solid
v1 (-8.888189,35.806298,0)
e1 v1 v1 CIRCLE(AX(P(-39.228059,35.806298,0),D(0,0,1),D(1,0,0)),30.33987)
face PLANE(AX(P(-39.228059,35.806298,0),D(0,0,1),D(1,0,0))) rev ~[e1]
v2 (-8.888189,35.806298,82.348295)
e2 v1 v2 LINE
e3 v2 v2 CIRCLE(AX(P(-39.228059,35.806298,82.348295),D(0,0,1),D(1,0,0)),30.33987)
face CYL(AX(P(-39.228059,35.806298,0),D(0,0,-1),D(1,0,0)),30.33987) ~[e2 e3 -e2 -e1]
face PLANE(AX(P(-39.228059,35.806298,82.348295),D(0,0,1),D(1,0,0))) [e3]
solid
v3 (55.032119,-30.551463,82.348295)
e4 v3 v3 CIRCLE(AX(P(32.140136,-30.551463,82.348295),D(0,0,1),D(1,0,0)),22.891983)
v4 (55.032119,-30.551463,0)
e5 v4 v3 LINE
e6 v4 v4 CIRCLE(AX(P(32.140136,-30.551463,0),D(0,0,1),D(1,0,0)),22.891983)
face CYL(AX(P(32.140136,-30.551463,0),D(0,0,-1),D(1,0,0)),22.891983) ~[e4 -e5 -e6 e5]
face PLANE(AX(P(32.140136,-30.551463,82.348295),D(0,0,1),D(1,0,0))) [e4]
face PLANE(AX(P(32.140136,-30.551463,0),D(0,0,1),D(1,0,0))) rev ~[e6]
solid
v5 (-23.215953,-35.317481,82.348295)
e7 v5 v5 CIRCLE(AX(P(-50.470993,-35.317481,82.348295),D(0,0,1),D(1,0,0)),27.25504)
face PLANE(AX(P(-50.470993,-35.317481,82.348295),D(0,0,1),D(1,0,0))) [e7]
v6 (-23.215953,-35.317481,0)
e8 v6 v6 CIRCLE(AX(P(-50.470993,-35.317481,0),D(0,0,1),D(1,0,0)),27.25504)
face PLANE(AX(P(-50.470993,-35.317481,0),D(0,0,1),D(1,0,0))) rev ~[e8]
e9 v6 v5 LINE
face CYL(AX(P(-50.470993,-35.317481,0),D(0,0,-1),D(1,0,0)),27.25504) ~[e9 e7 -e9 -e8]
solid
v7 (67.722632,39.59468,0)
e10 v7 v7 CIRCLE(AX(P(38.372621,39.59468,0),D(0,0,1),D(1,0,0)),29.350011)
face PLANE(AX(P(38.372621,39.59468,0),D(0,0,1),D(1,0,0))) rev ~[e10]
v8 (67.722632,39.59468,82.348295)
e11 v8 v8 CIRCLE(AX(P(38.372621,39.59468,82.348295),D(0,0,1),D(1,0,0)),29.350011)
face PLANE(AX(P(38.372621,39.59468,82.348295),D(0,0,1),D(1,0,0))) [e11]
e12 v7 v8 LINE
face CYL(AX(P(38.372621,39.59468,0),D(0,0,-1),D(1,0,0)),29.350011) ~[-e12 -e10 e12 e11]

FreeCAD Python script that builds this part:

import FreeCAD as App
import Part
import Sketcher
from FreeCAD import Vector

doc = App.newDocument("Part")
body = doc.addObject("PartDesign::Body", "Body")
body.AllowCompound = True

sketch1 = body.newObject("Sketcher::SketchObject", "Sketch")
sketch1.AttachmentSupport = (doc.getObject("XY_Plane"), [""])
sketch1.MapMode = "FlatFace"
sketch1.addGeometry([
    Part.Circle(Vector(-39.228059, 35.806298, 0), Vector(0, 0, 1), 30.33987),
    Part.Circle(Vector(38.372621, 39.59468, 0), Vector(0, 0, 1), 29.350011),
    Part.Circle(Vector(32.140136, -30.551463, 0), Vector(0, 0, 1), 22.891983),
    Part.Circle(Vector(-50.470993, -35.317481, 0), Vector(0, 0, 1), 27.25504),
], False)
sketch1.addConstraint([
    Sketcher.Constraint("Diameter", 0, 60.67974),
    Sketcher.Constraint("Diameter", 1, 58.700022),
    Sketcher.Constraint("Diameter", 3, 54.51008),
    Sketcher.Constraint("Diameter", 2, 45.783966),
    Sketcher.Constraint("DistanceX", 0, 3, -1, 1, 39.228059),
    Sketcher.Constraint("DistanceX", -1, 1, 1, 3, 38.372621),
    Sketcher.Constraint("DistanceY", -1, 1, 1, 3, 39.59468),
    Sketcher.Constraint("DistanceY", 3, 3, -1, 1, 35.317481),
    Sketcher.Constraint("DistanceY", 0, 3, 1, 3, 3.788382),
    Sketcher.Constraint("DistanceY", 2, 3, 0, 3, 66.357761),
    Sketcher.Constraint("DistanceX", 3, 3, 2, 3, 82.611129),
    Sketcher.Constraint("DistanceX", -1, 1, 2, 3, 32.140136),
])
pad1 = body.newObject("PartDesign::Pad", "Pad")
pad1.Profile = sketch1
pad1.Length = 82.348295

doc.recompute()
